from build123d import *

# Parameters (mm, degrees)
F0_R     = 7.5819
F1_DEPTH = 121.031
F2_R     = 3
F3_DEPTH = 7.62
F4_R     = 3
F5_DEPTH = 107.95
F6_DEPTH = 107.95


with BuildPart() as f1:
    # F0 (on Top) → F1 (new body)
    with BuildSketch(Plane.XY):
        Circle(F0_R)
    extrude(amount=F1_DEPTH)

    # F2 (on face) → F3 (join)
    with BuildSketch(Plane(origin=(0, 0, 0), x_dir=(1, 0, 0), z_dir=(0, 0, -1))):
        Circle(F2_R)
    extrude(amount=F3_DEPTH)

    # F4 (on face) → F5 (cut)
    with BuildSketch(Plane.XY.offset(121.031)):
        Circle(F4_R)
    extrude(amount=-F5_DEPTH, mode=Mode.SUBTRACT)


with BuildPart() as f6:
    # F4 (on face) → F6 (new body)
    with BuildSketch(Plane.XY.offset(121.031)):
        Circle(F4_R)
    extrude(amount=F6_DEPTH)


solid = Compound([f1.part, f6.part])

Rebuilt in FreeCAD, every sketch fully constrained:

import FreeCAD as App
import Part
import Sketcher
from FreeCAD import Vector
Q = App.Units.Quantity

doc = App.newDocument("Part")
body = doc.addObject("PartDesign::Body", "Body")

# Sketch on XY plane
sketch1 = body.newObject("Sketcher::SketchObject", "Sketch")
sketch1.AttachmentSupport = (doc.getObject("XY_Plane"), [""])
sketch1.MapMode = "FlatFace"
sketch1.addGeometry(Part.Circle(Vector(0, 0, 0), Vector(0, 0, 1), 8), False)
sketch1.addConstraint([
    Sketcher.Constraint("Coincident", 0, 3, -1, 1),
    Sketcher.Constraint("Diameter", 0, Q("0.597 in")),
])
pad1 = body.newObject("PartDesign::Pad", "Pad")
pad1.Profile = sketch1
pad1.Length = Q("4.765 in")

# Sketch on XY plane
sketch2 = body.newObject("Sketcher::SketchObject", "Sketch001")
sketch2.AttachmentSupport = (doc.getObject("XY_Plane"), [""])
sketch2.MapMode = "FlatFace"
sketch2.addGeometry(Part.Circle(Vector(0, 0, 0), Vector(0, 0, 1), 3), False)
sketch2.addConstraint([
    Sketcher.Constraint("Coincident", 0, 3, -1, 1),
    Sketcher.Constraint("Diameter", 0, 6.0),
])
pad2 = body.newObject("PartDesign::Pad", "Pad001")
pad2.Profile = sketch2
pad2.Length = Q("0.3 in")
pad2.Reversed = True

# Sketch on XY plane
sketch3 = body.newObject("Sketcher::SketchObject", "Sketch002")
sketch3.AttachmentSupport = (doc.getObject("XY_Plane"), [""])
sketch3.MapMode = "FlatFace"
sketch3.AttachmentOffset = App.Placement(Vector(0, 0, 4.765 * 25.4), App.Rotation())
sketch3.addGeometry(Part.Circle(Vector(0, 0, 0), Vector(0, 0, 1), 3), False)
sketch3.addConstraint([
    Sketcher.Constraint("Coincident", 0, 3, -1, 1),
    Sketcher.Constraint("Diameter", 0, 6.0),
])
pocket1 = body.newObject("PartDesign::Pocket", "Pocket")
pocket1.Profile = sketch3
pocket1.Length = Q("4.25 in")
body2 = doc.addObject("PartDesign::Body", "Body001")

# Sketch on XY plane
sketch4 = body2.newObject("Sketcher::SketchObject", "Sketch003")
sketch4.AttachmentSupport = (doc.getObject("XY_Plane001"), [""])
sketch4.MapMode = "FlatFace"
sketch4.AttachmentOffset = App.Placement(Vector(0, 0, 4.765 * 25.4), App.Rotation())
sketch4.addGeometry(Part.Circle(Vector(0, 0, 0), Vector(0, 0, 1), 3), False)
sketch4.addConstraint([
    Sketcher.Constraint("Coincident", 0, 3, -1, 1),
    Sketcher.Constraint("Diameter", 0, 6.0),
])
pad3 = body2.newObject("PartDesign::Pad", "Pad002")
pad3.Profile = sketch4
pad3.Length = Q("4.25 in")

doc.recompute()
